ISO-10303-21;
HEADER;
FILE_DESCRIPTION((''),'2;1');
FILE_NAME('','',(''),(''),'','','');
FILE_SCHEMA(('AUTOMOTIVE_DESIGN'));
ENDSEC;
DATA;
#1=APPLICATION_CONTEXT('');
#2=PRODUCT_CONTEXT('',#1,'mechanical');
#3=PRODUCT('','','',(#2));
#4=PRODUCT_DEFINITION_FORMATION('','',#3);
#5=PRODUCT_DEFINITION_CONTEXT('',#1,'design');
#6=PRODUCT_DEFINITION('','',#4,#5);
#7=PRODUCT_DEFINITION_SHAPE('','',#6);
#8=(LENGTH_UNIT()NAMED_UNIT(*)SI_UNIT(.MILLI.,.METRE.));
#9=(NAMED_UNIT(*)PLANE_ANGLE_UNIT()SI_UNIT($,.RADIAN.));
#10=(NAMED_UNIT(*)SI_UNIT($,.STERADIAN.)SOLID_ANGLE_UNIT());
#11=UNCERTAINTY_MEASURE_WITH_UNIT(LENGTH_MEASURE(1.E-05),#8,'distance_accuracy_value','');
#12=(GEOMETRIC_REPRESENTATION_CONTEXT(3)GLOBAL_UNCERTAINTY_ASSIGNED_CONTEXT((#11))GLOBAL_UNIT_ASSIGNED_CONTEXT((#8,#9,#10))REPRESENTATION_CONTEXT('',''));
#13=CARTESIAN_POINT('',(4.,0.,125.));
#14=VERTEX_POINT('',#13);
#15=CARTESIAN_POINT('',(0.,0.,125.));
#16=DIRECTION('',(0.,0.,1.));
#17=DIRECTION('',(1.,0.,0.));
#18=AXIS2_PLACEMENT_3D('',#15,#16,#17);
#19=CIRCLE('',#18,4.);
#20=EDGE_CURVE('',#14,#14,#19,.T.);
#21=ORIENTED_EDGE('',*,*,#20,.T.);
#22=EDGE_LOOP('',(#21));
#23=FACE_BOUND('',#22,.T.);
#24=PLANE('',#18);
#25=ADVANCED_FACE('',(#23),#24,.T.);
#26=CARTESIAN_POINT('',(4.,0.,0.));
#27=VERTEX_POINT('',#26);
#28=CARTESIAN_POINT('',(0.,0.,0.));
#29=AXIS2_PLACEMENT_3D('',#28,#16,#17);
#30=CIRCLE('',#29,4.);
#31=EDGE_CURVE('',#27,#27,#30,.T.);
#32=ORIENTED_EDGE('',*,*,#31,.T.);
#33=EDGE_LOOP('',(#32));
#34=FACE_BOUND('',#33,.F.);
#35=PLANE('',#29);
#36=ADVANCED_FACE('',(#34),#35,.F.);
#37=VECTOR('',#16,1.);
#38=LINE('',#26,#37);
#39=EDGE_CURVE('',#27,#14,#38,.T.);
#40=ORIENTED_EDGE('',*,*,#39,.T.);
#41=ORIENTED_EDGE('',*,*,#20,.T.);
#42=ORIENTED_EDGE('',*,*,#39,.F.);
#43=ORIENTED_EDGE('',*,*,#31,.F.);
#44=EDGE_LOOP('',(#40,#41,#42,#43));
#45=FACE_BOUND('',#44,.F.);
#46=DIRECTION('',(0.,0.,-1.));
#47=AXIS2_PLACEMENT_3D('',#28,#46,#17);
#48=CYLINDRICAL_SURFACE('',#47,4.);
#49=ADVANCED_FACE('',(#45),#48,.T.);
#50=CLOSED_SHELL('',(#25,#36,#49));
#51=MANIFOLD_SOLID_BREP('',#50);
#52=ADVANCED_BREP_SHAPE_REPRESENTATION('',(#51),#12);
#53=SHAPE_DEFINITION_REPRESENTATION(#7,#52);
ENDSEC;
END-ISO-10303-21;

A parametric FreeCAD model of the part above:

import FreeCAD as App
import Part
import Sketcher

doc = App.newDocument("Part")
body = doc.addObject("PartDesign::Body", "Body")

sketch1 = body.newObject("Sketcher::SketchObject", "Sketch")
sketch1.AttachmentSupport = (doc.getObject("XY_Plane"), [""])
sketch1.MapMode = "FlatFace"
sketch1.addGeometry(Part.Circle(App.Vector(0, 0, 0), App.Vector(0, 0, 1), 4), False)
sketch1.addConstraint([
    Sketcher.Constraint("Coincident", 0, 3, -1, 1),
    Sketcher.Constraint("Diameter", 0, 8.0),
])
pad1 = body.newObject("PartDesign::Pad", "Pad")
pad1.Profile = sketch1
pad1.Length = 125

doc.recompute()
